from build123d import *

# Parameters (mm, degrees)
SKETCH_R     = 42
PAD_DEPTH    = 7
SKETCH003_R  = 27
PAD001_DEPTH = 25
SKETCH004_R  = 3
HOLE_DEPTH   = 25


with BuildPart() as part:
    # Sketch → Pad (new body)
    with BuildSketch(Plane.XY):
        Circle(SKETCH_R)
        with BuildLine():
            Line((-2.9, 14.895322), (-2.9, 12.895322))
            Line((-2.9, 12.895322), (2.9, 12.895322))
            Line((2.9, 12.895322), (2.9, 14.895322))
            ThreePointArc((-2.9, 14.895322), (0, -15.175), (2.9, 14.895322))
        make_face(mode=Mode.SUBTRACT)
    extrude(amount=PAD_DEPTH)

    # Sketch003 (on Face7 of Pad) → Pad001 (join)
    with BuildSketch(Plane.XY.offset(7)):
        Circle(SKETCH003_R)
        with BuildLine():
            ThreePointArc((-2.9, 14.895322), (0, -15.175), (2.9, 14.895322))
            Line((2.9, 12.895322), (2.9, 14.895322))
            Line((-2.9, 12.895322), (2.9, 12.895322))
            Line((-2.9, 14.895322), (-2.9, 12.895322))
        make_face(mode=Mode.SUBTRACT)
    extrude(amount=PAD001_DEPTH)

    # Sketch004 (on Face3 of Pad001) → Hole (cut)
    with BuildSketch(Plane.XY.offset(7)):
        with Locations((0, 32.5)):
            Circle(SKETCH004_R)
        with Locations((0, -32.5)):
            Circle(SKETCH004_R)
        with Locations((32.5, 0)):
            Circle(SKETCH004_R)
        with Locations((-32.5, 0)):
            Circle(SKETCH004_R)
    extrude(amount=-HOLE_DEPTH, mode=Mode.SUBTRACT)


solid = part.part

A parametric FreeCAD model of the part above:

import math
import FreeCAD as App
import Part
import Sketcher
from FreeCAD import Vector

doc = App.newDocument("Part")
params = doc.addObject("Spreadsheet::Sheet", "Params")
for row, (alias, value) in enumerate([
    ("sketch1_diameter", "84 mm"),
    ("sketch1_height", "2 mm"),
    ("sketch1_width", "5.8 mm"),
    ("pad1_length", "7 mm"),
    ("sketch2_diameter", "54 mm"),
    ("sketch2_height", "2 mm"),
    ("sketch2_width", "5.8 mm"),
    ("pad2_length", "25 mm"),
    ("sketch3_diameter", "6 mm"),
    ("pocket1_length", "25 mm"),
], start=1):
    params.set(f"A{row}", alias)
    params.set(f"B{row}", "=" + value)
    params.setAlias(f"B{row}", alias)

body = doc.addObject("PartDesign::Body", "Body")

sketch1 = doc.addObject("Sketcher::SketchObject", "Sketch")
body.addObject(sketch1)
sketch1.AttachmentSupport = (doc.XY_Plane, [""])
sketch1.MapMode = "FlatFace"
sketch1.addGeometry([
    Part.Circle(Vector(0, 0, 0), Vector(0, 0, 1), 42),
    Part.ArcOfCircle(Part.Circle(Vector(0, 0, 0), Vector(0, 0, 1), 15.2), math.radians(101), math.radians(439)),
    Part.LineSegment(Vector(-2.9, 14.9, 0), Vector(-2.9, 12.9, 0)),
    Part.LineSegment(Vector(-2.9, 12.9, 0), Vector(2.9, 12.9, 0)),
    Part.LineSegment(Vector(2.9, 12.9, 0), Vector(2.9, 14.9, 0)),
], False)
sketch1.addConstraint([
    Sketcher.Constraint("Coincident", 1, 1, 2, 1),
    Sketcher.Constraint("Coincident", 2, 2, 3, 1),
    Sketcher.Constraint("Coincident", 3, 2, 4, 1),
    Sketcher.Constraint("Coincident", 4, 2, 1, 2),
    Sketcher.Constraint("Vertical", 2),
    Sketcher.Constraint("Horizontal", 3),
    Sketcher.Constraint("Vertical", 4),
    Sketcher.Constraint("Coincident", 0, 3, -1, 1),
    Sketcher.Constraint("Coincident", 1, 3, -1, 1),
    Sketcher.Constraint("Horizontal", 1, 1, 4, 2),
    Sketcher.Constraint("Diameter", 0, 84.0),
    Sketcher.Constraint("DistanceY", 2, 2, 2, 1, 2.0),
    Sketcher.Constraint("DistanceX", 3, 1, 3, 2, 5.8),
    Sketcher.Constraint("Radius", 1, 15.175),
])
sketch1.setExpression("Constraints[10]", "Params.sketch1_diameter")
sketch1.setExpression("Constraints[11]", "Params.sketch1_height")
sketch1.setExpression("Constraints[12]", "Params.sketch1_width")
pad1 = doc.addObject("PartDesign::Pad", "Pad")
body.addObject(pad1)
pad1.Profile = sketch1
pad1.setExpression("Length", "Params.pad1_length")

sketch2 = doc.addObject("Sketcher::SketchObject", "Sketch001")
body.addObject(sketch2)
sketch2.AttachmentSupport = (doc.XY_Plane, [""])
sketch2.MapMode = "FlatFace"
sketch2.AttachmentOffset = App.Placement(Vector(0, 0, 7), App.Rotation())
sketch2.addGeometry([
    Part.Circle(Vector(0, 0, 0), Vector(0, 0, 1), 27),
    Part.ArcOfCircle(Part.Circle(Vector(0, 0, 0), Vector(0, 0, 1), 15.2), math.radians(101), math.radians(439)),
    Part.LineSegment(Vector(-2.9, 14.9, 0), Vector(-2.9, 12.9, 0)),
    Part.LineSegment(Vector(-2.9, 12.9, 0), Vector(2.9, 12.9, 0)),
    Part.LineSegment(Vector(2.9, 12.9, 0), Vector(2.9, 14.9, 0)),
], False)
sketch2.addConstraint([
    Sketcher.Constraint("Coincident", 1, 1, 2, 1),
    Sketcher.Constraint("Coincident", 2, 2, 3, 1),
    Sketcher.Constraint("Coincident", 3, 2, 4, 1),
    Sketcher.Constraint("Coincident", 4, 2, 1, 2),
    Sketcher.Constraint("Vertical", 2),
    Sketcher.Constraint("Horizontal", 3),
    Sketcher.Constraint("Vertical", 4),
    Sketcher.Constraint("Coincident", 0, 3, -1, 1),
    Sketcher.Constraint("Coincident", 1, 3, -1, 1),
    Sketcher.Constraint("Horizontal", 1, 1, 4, 2),
    Sketcher.Constraint("Diameter", 0, 54.0),
    Sketcher.Constraint("DistanceY", 2, 2, 2, 1, 2.0),
    Sketcher.Constraint("DistanceX", 3, 1, 3, 2, 5.8),
    Sketcher.Constraint("Radius", 1, 15.175),
])
sketch2.setExpression("Constraints[10]", "Params.sketch2_diameter")
sketch2.setExpression("Constraints[11]", "Params.sketch2_height")
sketch2.setExpression("Constraints[12]", "Params.sketch2_width")
pad2 = doc.addObject("PartDesign::Pad", "Pad001")
body.addObject(pad2)
pad2.Profile = sketch2
pad2.setExpression("Length", "Params.pad2_length")

sketch3 = doc.addObject("Sketcher::SketchObject", "Sketch002")
body.addObject(sketch3)
sketch3.AttachmentSupport = (doc.XY_Plane, [""])
sketch3.MapMode = "FlatFace"
sketch3.AttachmentOffset = App.Placement(Vector(0, 0, 7), App.Rotation())
sketch3.addGeometry([
    Part.Circle(Vector(0, 32.5, 0), Vector(0, 0, 1), 3),
    Part.Circle(Vector(0, -32.5, 0), Vector(0, 0, 1), 3),
    Part.Circle(Vector(32.5, 0, 0), Vector(0, 0, 1), 3),
    Part.Circle(Vector(-32.5, 0, 0), Vector(0, 0, 1), 3),
], False)
sketch3.addConstraint([
    Sketcher.Constraint("Equal", 0, 1),
    Sketcher.Constraint("Equal", 1, 2),
    Sketcher.Constraint("Equal", 2, 3),
    Sketcher.Constraint("Symmetric", 0, 3, 1, 3, -1, 1),
    Sketcher.Constraint("Symmetric", 2, 3, 3, 3, -1, 1),
    Sketcher.Constraint("PointOnObject", 0, 3, -2),
    Sketcher.Constraint("PointOnObject", 2, 3, -1),
    Sketcher.Constraint("Diameter", 0, 6.0),
    Sketcher.Constraint("DistanceY", 1, 3, 0, 3, 65.0),
    Sketcher.Constraint("DistanceX", 3, 3, 2, 3, 65.0),
])
sketch3.setExpression("Constraints[7]", "Params.sketch3_diameter")
pocket1 = doc.addObject("PartDesign::Pocket", "Pocket")
body.addObject(pocket1)
pocket1.Profile = sketch3
pocket1.setExpression("Length", "Params.pocket1_length")

doc.recompute()
